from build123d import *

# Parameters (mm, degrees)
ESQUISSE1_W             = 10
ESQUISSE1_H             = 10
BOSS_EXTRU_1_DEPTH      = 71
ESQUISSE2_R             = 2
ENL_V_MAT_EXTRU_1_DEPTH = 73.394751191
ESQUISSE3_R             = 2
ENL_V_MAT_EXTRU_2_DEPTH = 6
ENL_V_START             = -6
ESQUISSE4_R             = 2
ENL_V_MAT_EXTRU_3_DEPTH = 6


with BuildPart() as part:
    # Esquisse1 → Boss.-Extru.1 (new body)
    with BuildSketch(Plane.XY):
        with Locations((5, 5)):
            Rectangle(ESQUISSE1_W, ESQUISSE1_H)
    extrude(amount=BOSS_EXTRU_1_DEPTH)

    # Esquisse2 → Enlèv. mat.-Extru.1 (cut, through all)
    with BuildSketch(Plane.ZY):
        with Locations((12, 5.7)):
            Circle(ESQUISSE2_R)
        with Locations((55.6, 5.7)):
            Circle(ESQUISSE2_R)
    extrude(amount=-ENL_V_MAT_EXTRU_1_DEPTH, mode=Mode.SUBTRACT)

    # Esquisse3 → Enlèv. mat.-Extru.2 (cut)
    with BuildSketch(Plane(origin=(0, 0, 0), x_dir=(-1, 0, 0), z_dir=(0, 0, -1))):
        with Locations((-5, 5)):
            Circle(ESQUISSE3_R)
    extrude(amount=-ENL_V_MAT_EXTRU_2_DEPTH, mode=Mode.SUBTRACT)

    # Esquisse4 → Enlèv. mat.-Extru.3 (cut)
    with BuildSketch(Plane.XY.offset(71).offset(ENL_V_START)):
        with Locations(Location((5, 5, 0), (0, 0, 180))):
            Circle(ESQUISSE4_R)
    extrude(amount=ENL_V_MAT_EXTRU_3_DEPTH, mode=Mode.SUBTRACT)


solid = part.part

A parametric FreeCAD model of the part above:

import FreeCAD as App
import Part
import Sketcher
from FreeCAD import Vector
Q = App.Units.Quantity


def add_polygon(sketch, points):
    """Adds a closed chain of lines whose ends are joined by coincident constraints."""
    first, n = sketch.GeometryCount, len(points)
    for a, b in zip(points, points[1:] + points[:1]):
        sketch.addGeometry(Part.LineSegment(App.Vector(*a, 0), App.Vector(*b, 0)), False)
    for i in range(n):
        sketch.addConstraint(Sketcher.Constraint("Coincident", first + i, 2, first + (i + 1) % n, 1))

doc = App.newDocument("Part")
body = doc.addObject("PartDesign::Body", "Body")

sketch1 = body.newObject("Sketcher::SketchObject", "Sketch")
sketch1.AttachmentSupport = (doc.getObject("XY_Plane"), [""])
sketch1.MapMode = "FlatFace"
add_polygon(sketch1, [(0, 10), (0, 0), (10, 0), (10, 10)])
sketch1.addConstraint([
    Sketcher.Constraint("Vertical", 0),
    Sketcher.Constraint("Horizontal", 1),
    Sketcher.Constraint("Vertical", 2),
    Sketcher.Constraint("Horizontal", 3),
    Sketcher.Constraint("Coincident", 0, 2, -1, 1),
    Sketcher.Constraint("Equal", 3, 0),
    Sketcher.Constraint("DistanceX", 1, 1, 1, 2, Q("10 mm")),
])
pad1 = body.newObject("PartDesign::Pad", "Pad")
pad1.Profile = sketch1
pad1.Length = 71

sketch2 = body.newObject("Sketcher::SketchObject", "Sketch001")
sketch2.AttachmentSupport = (doc.getObject("YZ_Plane"), [""])
sketch2.MapMode = "FlatFace"
sketch2.addGeometry([
    Part.Circle(Vector(5.7, 12, 0), Vector(0, 0, 1), 2),
    Part.Circle(Vector(5.7, 55.6, 0), Vector(0, 0, 1), 2),
], False)
sketch2.addConstraint([
    Sketcher.Constraint("Equal", 0, 1),
    Sketcher.Constraint("Vertical", 0, 3, 1, 3),
    Sketcher.Constraint("Diameter", 0, Q("4 mm")),
    Sketcher.Constraint("DistanceY", -1, 1, 0, 3, Q("12 mm")),
    Sketcher.Constraint("DistanceX", -1, 1, 0, 3, Q("5.7 mm")),
    Sketcher.Constraint("DistanceY", -1, 1, 1, 3, Q("55.6 mm")),
])
pocket1 = body.newObject("PartDesign::Pocket", "Pocket")
pocket1.Profile = sketch2
pocket1.Type = "ThroughAll"
pocket1.Reversed = True

sketch3 = body.newObject("Sketcher::SketchObject", "Sketch002")
sketch3.AttachmentSupport = (doc.getObject("XY_Plane"), [""])
sketch3.MapMode = "FlatFace"
sketch3.addGeometry(Part.Circle(Vector(5, 5, 0), Vector(0, 0, 1), 2), False)
sketch3.addConstraint([
    Sketcher.Constraint("Diameter", 0, Q("4 mm")),
    Sketcher.Constraint("DistanceX", -1, 1, 0, 3, Q("5 mm")),
    Sketcher.Constraint("DistanceY", -1, 1, 0, 3, Q("5 mm")),
])
pocket2 = body.newObject("PartDesign::Pocket", "Pocket001")
pocket2.Profile = sketch3
pocket2.Length = 6
pocket2.Reversed = True

sketch4 = body.newObject("Sketcher::SketchObject", "Sketch003")
sketch4.AttachmentSupport = (doc.getObject("XY_Plane"), [""])
sketch4.MapMode = "FlatFace"
sketch4.AttachmentOffset = App.Placement(Vector(0, 0, 65), App.Rotation())
sketch4.addGeometry(Part.Circle(Vector(5, 5, 0), Vector(0, 0, 1), 2), False)
sketch4.addConstraint([
    Sketcher.Constraint("Diameter", 0, Q("4 mm")),
    Sketcher.Constraint("DistanceX", -1, 1, 0, 3, Q("5 mm")),
    Sketcher.Constraint("DistanceY", -1, 1, 0, 3, Q("5 mm")),
])
pocket3 = body.newObject("PartDesign::Pocket", "Pocket002")
pocket3.Profile = sketch4
pocket3.Length = 6
pocket3.Reversed = True

doc.recompute()
